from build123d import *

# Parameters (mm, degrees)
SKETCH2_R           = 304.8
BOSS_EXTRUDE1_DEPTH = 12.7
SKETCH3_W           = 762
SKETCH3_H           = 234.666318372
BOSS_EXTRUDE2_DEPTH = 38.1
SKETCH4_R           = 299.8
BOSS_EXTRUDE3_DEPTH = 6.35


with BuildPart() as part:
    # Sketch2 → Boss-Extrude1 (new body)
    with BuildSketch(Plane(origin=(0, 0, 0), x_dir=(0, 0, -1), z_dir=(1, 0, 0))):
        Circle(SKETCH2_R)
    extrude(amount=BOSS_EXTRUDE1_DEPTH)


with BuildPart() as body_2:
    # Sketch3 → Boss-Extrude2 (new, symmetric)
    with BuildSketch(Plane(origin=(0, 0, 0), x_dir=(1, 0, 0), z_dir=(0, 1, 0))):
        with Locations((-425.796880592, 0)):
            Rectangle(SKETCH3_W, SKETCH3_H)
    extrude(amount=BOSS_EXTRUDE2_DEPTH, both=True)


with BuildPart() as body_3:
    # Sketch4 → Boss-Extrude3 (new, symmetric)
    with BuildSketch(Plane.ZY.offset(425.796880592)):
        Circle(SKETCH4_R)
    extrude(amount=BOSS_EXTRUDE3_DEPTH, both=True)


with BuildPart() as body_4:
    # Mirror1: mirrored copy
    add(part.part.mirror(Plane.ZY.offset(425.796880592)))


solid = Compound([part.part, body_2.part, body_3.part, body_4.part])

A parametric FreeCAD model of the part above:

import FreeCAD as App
import Part
import Sketcher
from FreeCAD import Vector
Q = App.Units.Quantity

doc = App.newDocument("Part")
body = doc.addObject("PartDesign::Body", "Body")

# Sketch on YZ plane
sketch1 = body.newObject("Sketcher::SketchObject", "Sketch")
sketch1.AttachmentSupport = (doc.getObject("YZ_Plane"), [""])
sketch1.MapMode = "FlatFace"
sketch1.addGeometry(Part.Circle(Vector(0, 0, 0), Vector(0, 0, 1), 305), False)
sketch1.addConstraint([
    Sketcher.Constraint("Coincident", 0, 3, -1, 1),
    Sketcher.Constraint("Diameter", 0, Q("24 in")),
])
pad1 = body.newObject("PartDesign::Pad", "Pad")
pad1.Profile = sketch1
pad1.Length = Q("0.5 in")
body2 = doc.addObject("PartDesign::Body", "Body001")

# Sketch on XZ plane
sketch2 = body2.newObject("Sketcher::SketchObject", "Sketch001")
sketch2.AttachmentSupport = (doc.getObject("XZ_Plane001"), [""])
sketch2.MapMode = "FlatFace"
sketch2.addGeometry([
    Part.LineSegment(Vector(-807, -117, 0), Vector(-807, 117, 0)),
    Part.LineSegment(Vector(-807, 117, 0), Vector(-45, 117, 0)),
    Part.LineSegment(Vector(-45, 117, 0), Vector(-45, -117, 0)),
    Part.LineSegment(Vector(-45, -117, 0), Vector(-807, -117, 0)),
], False)
sketch2.addConstraint([
    Sketcher.Constraint("Coincident", 0, 2, 1, 1),
    Sketcher.Constraint("Coincident", 1, 2, 2, 1),
    Sketcher.Constraint("Coincident", 2, 2, 3, 1),
    Sketcher.Constraint("Coincident", 3, 2, 0, 1),
    Sketcher.Constraint("Vertical", 0),
    Sketcher.Constraint("Horizontal", 1),
    Sketcher.Constraint("Vertical", 2),
    Sketcher.Constraint("Horizontal", 3),
    Sketcher.Constraint("DistanceX", 1, 1, 1, 2, Q("30 in")),
    Sketcher.Constraint("DistanceY", 0, 1, 0, 2, Q("234.666318 mm")),
    Sketcher.Constraint("DistanceX", 0, 2, -1, 1, Q("806.796881 mm")),
    Sketcher.Constraint("DistanceY", -1, 1, 0, 2, Q("117.333159 mm")),
])
pad2 = body2.newObject("PartDesign::Pad", "Pad001")
pad2.Profile = sketch2
pad2.Length = Q("3 in")
pad2.Midplane = True
body3 = doc.addObject("PartDesign::Body", "Body002")

# Sketch on YZ plane
sketch3 = body3.newObject("Sketcher::SketchObject", "Sketch002")
sketch3.AttachmentSupport = (doc.getObject("YZ_Plane002"), [""])
sketch3.MapMode = "FlatFace"
sketch3.AttachmentOffset = App.Placement(Vector(0, 0, -425.796881), App.Rotation())
sketch3.addGeometry(Part.Circle(Vector(0, 0, 0), Vector(0, 0, 1), 300), False)
sketch3.addConstraint([
    Sketcher.Constraint("Coincident", 0, 3, -1, 1),
    Sketcher.Constraint("Diameter", 0, Q("599.6 mm")),
])
pad3 = body3.newObject("PartDesign::Pad", "Pad002")
pad3.Profile = sketch3
pad3.Length = Q("0.5 in")
pad3.Midplane = True
body4 = doc.addObject("PartDesign::Body", "Body003")
doc.recompute()

mirroring = doc.addObject("Part::Mirroring", "Mirroring")
mirroring.Source = body
mirroring.Base = Vector(-425.796881, 0, 0)
mirroring.Normal = Vector(-1, 0, 0)
body4.BaseFeature = mirroring
doc.recompute()
mirroring.Visibility = False

doc.recompute()
